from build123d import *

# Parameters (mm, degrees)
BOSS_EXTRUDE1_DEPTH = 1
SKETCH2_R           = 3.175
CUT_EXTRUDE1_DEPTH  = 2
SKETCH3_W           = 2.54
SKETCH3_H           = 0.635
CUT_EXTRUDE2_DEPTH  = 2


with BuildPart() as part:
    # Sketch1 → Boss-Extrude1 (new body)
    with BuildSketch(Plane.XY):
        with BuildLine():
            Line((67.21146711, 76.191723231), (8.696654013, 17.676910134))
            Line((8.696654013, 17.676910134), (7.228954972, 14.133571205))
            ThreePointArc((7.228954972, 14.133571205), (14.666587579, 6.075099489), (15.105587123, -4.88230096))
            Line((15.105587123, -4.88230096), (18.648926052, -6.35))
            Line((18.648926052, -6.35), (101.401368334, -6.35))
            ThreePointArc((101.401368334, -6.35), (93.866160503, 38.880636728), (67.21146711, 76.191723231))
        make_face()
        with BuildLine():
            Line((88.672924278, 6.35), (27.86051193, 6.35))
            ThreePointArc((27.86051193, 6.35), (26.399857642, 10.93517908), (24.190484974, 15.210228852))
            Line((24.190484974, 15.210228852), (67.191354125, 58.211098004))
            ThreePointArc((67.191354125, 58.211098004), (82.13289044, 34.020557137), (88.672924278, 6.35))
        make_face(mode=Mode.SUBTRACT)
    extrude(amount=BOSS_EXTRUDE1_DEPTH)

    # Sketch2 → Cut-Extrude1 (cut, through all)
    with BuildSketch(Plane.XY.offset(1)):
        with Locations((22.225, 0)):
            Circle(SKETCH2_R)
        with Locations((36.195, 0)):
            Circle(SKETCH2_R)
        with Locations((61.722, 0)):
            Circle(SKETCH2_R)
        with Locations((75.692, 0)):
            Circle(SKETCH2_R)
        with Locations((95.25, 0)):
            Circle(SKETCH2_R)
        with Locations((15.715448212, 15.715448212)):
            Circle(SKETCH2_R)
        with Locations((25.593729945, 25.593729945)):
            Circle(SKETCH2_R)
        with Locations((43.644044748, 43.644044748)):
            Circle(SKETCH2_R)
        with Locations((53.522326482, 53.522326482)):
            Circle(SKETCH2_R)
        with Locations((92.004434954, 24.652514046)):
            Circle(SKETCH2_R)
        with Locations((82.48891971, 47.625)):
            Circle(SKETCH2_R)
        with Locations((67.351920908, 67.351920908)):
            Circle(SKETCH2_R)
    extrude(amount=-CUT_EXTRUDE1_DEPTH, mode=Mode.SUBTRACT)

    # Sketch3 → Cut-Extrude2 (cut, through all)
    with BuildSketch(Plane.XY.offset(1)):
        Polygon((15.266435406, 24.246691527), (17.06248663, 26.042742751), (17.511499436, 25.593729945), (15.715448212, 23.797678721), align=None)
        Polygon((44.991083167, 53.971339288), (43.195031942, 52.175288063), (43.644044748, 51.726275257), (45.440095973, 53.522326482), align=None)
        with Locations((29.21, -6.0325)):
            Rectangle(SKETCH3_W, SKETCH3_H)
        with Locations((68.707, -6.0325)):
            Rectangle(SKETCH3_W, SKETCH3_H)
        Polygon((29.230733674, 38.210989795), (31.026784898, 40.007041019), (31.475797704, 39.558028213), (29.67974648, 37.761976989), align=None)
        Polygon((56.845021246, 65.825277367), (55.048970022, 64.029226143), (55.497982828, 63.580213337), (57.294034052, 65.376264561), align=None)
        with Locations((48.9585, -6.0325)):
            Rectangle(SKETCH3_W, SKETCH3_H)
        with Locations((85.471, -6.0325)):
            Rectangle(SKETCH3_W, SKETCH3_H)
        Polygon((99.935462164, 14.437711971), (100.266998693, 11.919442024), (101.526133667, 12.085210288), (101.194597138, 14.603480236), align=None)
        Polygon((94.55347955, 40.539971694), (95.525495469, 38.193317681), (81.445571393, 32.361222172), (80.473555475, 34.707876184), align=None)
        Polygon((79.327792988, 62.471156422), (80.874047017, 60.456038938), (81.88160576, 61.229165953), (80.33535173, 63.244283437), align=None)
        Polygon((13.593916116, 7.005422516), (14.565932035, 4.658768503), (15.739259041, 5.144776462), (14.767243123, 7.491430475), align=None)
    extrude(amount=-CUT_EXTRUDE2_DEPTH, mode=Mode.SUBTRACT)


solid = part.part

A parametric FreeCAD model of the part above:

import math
import FreeCAD as App
import Part
import Sketcher

V = App.Vector
Q = App.Units.Quantity


def add_polygon(sketch, points):
    """Adds a closed chain of lines whose ends are joined by coincident constraints."""
    first, n = sketch.GeometryCount, len(points)
    for a, b in zip(points, points[1:] + points[:1]):
        sketch.addGeometry(Part.LineSegment(App.Vector(*a, 0), App.Vector(*b, 0)), False)
    for i in range(n):
        sketch.addConstraint(Sketcher.Constraint("Coincident", first + i, 2, first + (i + 1) % n, 1))

doc = App.newDocument("Part")
params = doc.addObject("Spreadsheet::Sheet", "Params")
for row, (alias, value) in enumerate([
    ("sketch1_radius", "4 in"),
    ("sketch1_radius2", "3.5 in"),
    ("sketch1_radius3", "0.625 in"),
    ("sketch1_radius4", "1.125 in"),
    ("pad1_length", "1 mm"),
    ("sketch2_diameter", "0.25 in"),
    ("sketch3_width", "0.1 in"),
    ("sketch3_length", "0.1 in"),
    ("sketch3_length2", "0.6 in"),
    ("sketch3_length3", "0.05 in"),
    ("sketch3_height", "0.025 in"),
], start=1):
    params.set(f"A{row}", alias)
    params.set(f"B{row}", "=" + value)
    params.setAlias(f"B{row}", alias)

body = doc.addObject("PartDesign::Body", "Body")

# Sketch on XY plane
sketch1 = doc.addObject("Sketcher::SketchObject", "Sketch")
body.addObject(sketch1)
sketch1.AttachmentSupport = (doc.XY_Plane, [""])
sketch1.MapMode = "FlatFace"
sketch1.addGeometry([
    Part.LineSegment(V(67.2, 76.2, 0), V(8.7, 17.7, 0)),  # 0
    Part.LineSegment(V(8.7, 17.7, 0), V(7.2, 14.1, 0)),  # 1
    Part.ArcOfCircle(Part.Circle(V(0, 0, 0), V(0, 0, 1), 15.9), math.radians(-18), math.radians(63)),  # 2
    Part.LineSegment(V(15.1, -4.9, 0), V(18.6, -6.3, 0)),  # 3
    Part.LineSegment(V(18.6, -6.3, 0), V(101.4, -6.3, 0)),  # 4
    Part.ArcOfCircle(Part.Circle(V(0, 0, 0), V(0, 0, 1), 101.6), math.radians(-4), math.radians(49)),  # 5
    Part.ArcOfCircle(Part.Circle(V(0, 0, 0), V(0, 0, 1), 88.9), math.radians(4), math.radians(41)),  # 6
    Part.LineSegment(V(88.7, 6.3, 0), V(27.9, 6.3, 0)),  # 7
    Part.ArcOfCircle(Part.Circle(V(0, 0, 0), V(0, 0, 1), 28.6), math.radians(12.84), math.radians(32.16)),  # 8
    Part.LineSegment(V(24.2, 15.2, 0), V(67.2, 58.2, 0)),  # 9
], False)
sketch1.addConstraint([
    Sketcher.Constraint("Coincident", 0, 2, 1, 1),
    Sketcher.Constraint("Coincident", 1, 2, 2, 2),
    Sketcher.Constraint("Coincident", 2, 1, 3, 1),
    Sketcher.Constraint("Coincident", 3, 2, 4, 1),
    Sketcher.Constraint("Coincident", 4, 2, 5, 1),
    Sketcher.Constraint("Coincident", 5, 2, 0, 1),
    Sketcher.Constraint("Coincident", 6, 1, 7, 1),
    Sketcher.Constraint("Coincident", 7, 2, 8, 1),
    Sketcher.Constraint("Coincident", 8, 2, 9, 1),
    Sketcher.Constraint("Coincident", 9, 2, 6, 2),
    Sketcher.Constraint("Horizontal", 4),
    Sketcher.Constraint("Horizontal", 7),
    Sketcher.Constraint("Coincident", 2, 3, -1, 1),
    Sketcher.Constraint("Coincident", 5, 3, -1, 1),
    Sketcher.Constraint("Coincident", 6, 3, -1, 1),
    Sketcher.Constraint("Coincident", 8, 3, -1, 1),
    Sketcher.Constraint("Perpendicular", 1, 3),
    Sketcher.Constraint("Parallel", 0, 9),
    Sketcher.Constraint("Equal", 1, 3),
    Sketcher.Constraint("Radius", 5, Q("4 in")),
    Sketcher.Constraint("Radius", 6, Q("3.5 in")),
    Sketcher.Constraint("Angle", 0, Q("-135 deg")),
    Sketcher.Constraint("Radius", 2, Q("0.625 in")),
    Sketcher.Constraint("Radius", 8, Q("1.125 in")),
    Sketcher.Constraint("Angle", 1, Q("-112.5 deg")),
    Sketcher.Constraint("DistanceY", 4, 2, 6, 1, Q("0.5 in")),
    Sketcher.Constraint("DistanceY", 3, 2, -1, 1, Q("0.25 in")),
    Sketcher.Constraint("DistanceY", 2, 1, -1, 1, 4.882301),
    Sketcher.Constraint("DistanceY", -1, 1, 9, 2, 58.211098),
    Sketcher.Constraint("DistanceX", 5, 2, 4, 2, 34.189901),
])
sketch1.setExpression("Constraints[19]", "Params.sketch1_radius")
sketch1.setExpression("Constraints[20]", "Params.sketch1_radius2")
sketch1.setExpression("Constraints[22]", "Params.sketch1_radius3")
sketch1.setExpression("Constraints[23]", "Params.sketch1_radius4")
pad1 = doc.addObject("PartDesign::Pad", "Pad")
body.addObject(pad1)
pad1.Profile = sketch1
pad1.setExpression("Length", "Params.pad1_length")

# Sketch on XY plane
sketch2 = doc.addObject("Sketcher::SketchObject", "Sketch001")
body.addObject(sketch2)
sketch2.AttachmentSupport = (doc.XY_Plane, [""])
sketch2.MapMode = "FlatFace"
sketch2.AttachmentOffset = App.Placement(V(0, 0, 1), App.Rotation())
sketch2.addGeometry([
    Part.Circle(V(22.2, 0, 0), V(0, 0, 1), 3.2),  # 0
    Part.Circle(V(36.2, 0, 0), V(0, 0, 1), 3.2),  # 1
    Part.Circle(V(61.7, 0, 0), V(0, 0, 1), 3.2),  # 2
    Part.Circle(V(75.7, 0, 0), V(0, 0, 1), 3.2),  # 3
    Part.Circle(V(95.2, 0, 0), V(0, 0, 1), 3.2),  # 4
    Part.Circle(V(15.7, 15.7, 0), V(0, 0, 1), 3.2),  # 5
    Part.Circle(V(25.6, 25.6, 0), V(0, 0, 1), 3.2),  # 6
    Part.Circle(V(43.6, 43.6, 0), V(0, 0, 1), 3.2),  # 7
    Part.Circle(V(53.5, 53.5, 0), V(0, 0, 1), 3.2),  # 8
    Part.Circle(V(92, 24.7, 0), V(0, 0, 1), 3.2),  # 9
    Part.Circle(V(82.5, 47.6, 0), V(0, 0, 1), 3.2),  # 10
    Part.Circle(V(67.4, 67.4, 0), V(0, 0, 1), 3.2),  # 11
], False)
sketch2.addConstraint([
    Sketcher.Constraint("Equal", 0, 1),
    Sketcher.Constraint("Equal", 1, 2),
    Sketcher.Constraint("Equal", 2, 3),
    Sketcher.Constraint("Equal", 3, 4),
    Sketcher.Constraint("Equal", 4, 5),
    Sketcher.Constraint("Equal", 5, 6),
    Sketcher.Constraint("Equal", 6, 7),
    Sketcher.Constraint("Equal", 7, 8),
    Sketcher.Constraint("Equal", 8, 9),
    Sketcher.Constraint("Equal", 9, 10),
    Sketcher.Constraint("Equal", 10, 11),
    Sketcher.Constraint("PointOnObject", 0, 3, -1),
    Sketcher.Constraint("PointOnObject", 1, 3, -1),
    Sketcher.Constraint("PointOnObject", 2, 3, -1),
    Sketcher.Constraint("PointOnObject", 3, 3, -1),
    Sketcher.Constraint("PointOnObject", 4, 3, -1),
    Sketcher.Constraint("Diameter", 0, Q("0.25 in")),
    Sketcher.Constraint("DistanceX", -1, 1, 2, 3, Q("2.43 in")),
    Sketcher.Constraint("DistanceX", -1, 1, 3, 3, Q("2.98 in")),
    Sketcher.Constraint("DistanceX", -1, 1, 4, 3, Q("3.75 in")),
    Sketcher.Constraint("DistanceX", 0, 3, 1, 3, Q("0.55 in")),
    Sketcher.Constraint("DistanceX", -1, 1, 0, 3, Q("0.875 in")),
    Sketcher.Constraint("DistanceY", -1, 1, 10, 3, Q("1.875 in")),
    Sketcher.Constraint("DistanceX", 11, 3, 10, 3, 15.136999),
    Sketcher.Constraint("DistanceX", -1, 1, 5, 3, 15.715448),
    Sketcher.Constraint("DistanceY", -1, 1, 5, 3, 15.715448),
    Sketcher.Constraint("DistanceX", -1, 1, 6, 3, 25.59373),
    Sketcher.Constraint("DistanceY", -1, 1, 6, 3, 25.59373),
    Sketcher.Constraint("DistanceX", -1, 1, 10, 3, 82.48892),
    Sketcher.Constraint("DistanceY", -1, 1, 11, 3, 67.351921),
    Sketcher.Constraint("DistanceX", 7, 3, 8, 3, 9.878282),
    Sketcher.Constraint("DistanceY", 7, 3, 8, 3, 9.878282),
    Sketcher.Constraint("DistanceX", 5, 3, 8, 3, 37.806878),
    Sketcher.Constraint("DistanceY", 5, 3, 8, 3, 37.806878),
    Sketcher.Constraint("DistanceX", 8, 3, 9, 3, 38.482108),
    Sketcher.Constraint("DistanceY", 9, 3, 7, 3, 18.991531),
])
sketch2.setExpression("Constraints[16]", "Params.sketch2_diameter")
pocket1 = doc.addObject("PartDesign::Pocket", "Pocket")
body.addObject(pocket1)
pocket1.Profile = sketch2
pocket1.Type = "ThroughAll"

# Sketch on XY plane
sketch3 = doc.addObject("Sketcher::SketchObject", "Sketch002")
body.addObject(sketch3)
sketch3.AttachmentSupport = (doc.XY_Plane, [""])
sketch3.MapMode = "FlatFace"
sketch3.AttachmentOffset = App.Placement(V(0, 0, 1), App.Rotation())
add_polygon(sketch3, [(17.1, 26), (15.3, 24.2), (15.7, 23.8), (17.5, 25.6)])  # lines 0-3
add_polygon(sketch3, [(45, 54), (43.2, 52.2), (43.6, 51.7), (45.4, 53.5)])  # lines 4-7
add_polygon(sketch3, [(27.9, -5.7), (27.9, -6.3), (30.5, -6.3), (30.5, -5.7)])  # lines 8-11
add_polygon(sketch3, [(67.4, -5.7), (67.4, -6.3), (70, -6.3), (70, -5.7)])  # lines 12-15
add_polygon(sketch3, [(31, 40), (29.2, 38.2), (29.7, 37.8), (31.5, 39.6)])  # lines 16-19
add_polygon(sketch3, [(56.8, 65.8), (55, 64), (55.5, 63.6), (57.3, 65.4)])  # lines 20-23
add_polygon(sketch3, [(47.7, -5.7), (47.7, -6.3), (50.2, -6.3), (50.2, -5.7)])  # lines 24-27
add_polygon(sketch3, [(84.2, -5.7), (84.2, -6.3), (86.7, -6.3), (86.7, -5.7)])  # lines 28-31
add_polygon(sketch3, [(99.9, 14.4), (100.3, 11.9), (101.5, 12.1), (101.2, 14.6)])  # lines 32-35
add_polygon(sketch3, [(95.5, 38.2), (94.6, 40.5), (80.5, 34.7), (81.4, 32.4)])  # lines 36-39
add_polygon(sketch3, [(79.3, 62.5), (80.9, 60.5), (81.9, 61.2), (80.3, 63.2)])  # lines 40-43
add_polygon(sketch3, [(13.6, 7), (14.6, 4.7), (15.7, 5.1), (14.8, 7.5)])  # lines 44-47
sketch3.addConstraint([
    Sketcher.Constraint("Vertical", 8),
    Sketcher.Constraint("Horizontal", 9),
    Sketcher.Constraint("Vertical", 10),
    Sketcher.Constraint("Horizontal", 11),
    Sketcher.Constraint("Vertical", 12),
    Sketcher.Constraint("Horizontal", 13),
    Sketcher.Constraint("Vertical", 14),
    Sketcher.Constraint("Horizontal", 15),
    Sketcher.Constraint("Vertical", 24),
    Sketcher.Constraint("Horizontal", 25),
    Sketcher.Constraint("Vertical", 26),
    Sketcher.Constraint("Horizontal", 27),
    Sketcher.Constraint("Vertical", 28),
    Sketcher.Constraint("Horizontal", 29),
    Sketcher.Constraint("Vertical", 30),
    Sketcher.Constraint("Horizontal", 31),
    Sketcher.Constraint("Perpendicular", 0, 1),
    Sketcher.Constraint("Perpendicular", 1, 2),
    Sketcher.Constraint("Perpendicular", 2, 3),
    Sketcher.Constraint("Perpendicular", 3, 4),
    Sketcher.Constraint("Perpendicular", 4, 5),
    Sketcher.Constraint("Perpendicular", 5, 6),
    Sketcher.Constraint("Perpendicular", 6, 7),
    Sketcher.Constraint("Perpendicular", 7, 16),
    Sketcher.Constraint("Perpendicular", 16, 17),
    Sketcher.Constraint("Perpendicular", 17, 18),
    Sketcher.Constraint("Perpendicular", 18, 19),
    Sketcher.Constraint("Perpendicular", 19, 20),
    Sketcher.Constraint("Perpendicular", 20, 21),
    Sketcher.Constraint("Perpendicular", 21, 22),
    Sketcher.Constraint("Perpendicular", 22, 23),
    Sketcher.Constraint("Perpendicular", 32, 33),
    Sketcher.Constraint("Perpendicular", 33, 34),
    Sketcher.Constraint("Perpendicular", 34, 35),
    Sketcher.Constraint("Perpendicular", 36, 37),
    Sketcher.Constraint("Perpendicular", 37, 38),
    Sketcher.Constraint("Perpendicular", 38, 39),
    Sketcher.Constraint("Perpendicular", 40, 41),
    Sketcher.Constraint("Perpendicular", 41, 42),
    Sketcher.Constraint("Perpendicular", 42, 43),
    Sketcher.Constraint("Perpendicular", 39, 44),
    Sketcher.Constraint("Perpendicular", 44, 45),
    Sketcher.Constraint("Perpendicular", 45, 46),
    Sketcher.Constraint("Perpendicular", 46, 47),
    Sketcher.Constraint("Horizontal", 9, 2, 12, 2),
    Sketcher.Constraint("Horizontal", 11, 2, 14, 2),
    Sketcher.Constraint("Horizontal", 13, 2, 24, 2),
    Sketcher.Constraint("Horizontal", 15, 2, 26, 2),
    Sketcher.Constraint("Horizontal", 25, 2, 28, 2),
    Sketcher.Constraint("Horizontal", 27, 2, 30, 2),
    Sketcher.Constraint("Equal", 11, 13),
    Sketcher.Constraint("Equal", 15, 25),
    Sketcher.Constraint("Equal", 27, 29),
    Sketcher.Constraint("Equal", 2, 4),
    Sketcher.Constraint("Equal", 3, 5),
    Sketcher.Constraint("Equal", 6, 16),
    Sketcher.Constraint("Equal", 7, 17),
    Sketcher.Constraint("Equal", 18, 20),
    Sketcher.Constraint("Equal", 19, 21),
    Sketcher.Constraint("Equal", 22, 32),
    Sketcher.Constraint("Equal", 34, 36),
    Sketcher.Constraint("Equal", 38, 40),
    Sketcher.Constraint("Equal", 35, 41),
    Sketcher.Constraint("Equal", 42, 44),
    Sketcher.Constraint("Equal", 43, 45),
    Sketcher.Constraint("DistanceX", 9, 1, 9, 2, Q("0.1 in")),
    Sketcher.Constraint("Angle", 0, Q("-135 deg")),
    Sketcher.Constraint("Distance", 0, Q("0.1 in")),
    Sketcher.Constraint("Distance", 37, Q("0.6 in")),
    Sketcher.Constraint("DistanceX", -1, 1, 8, 2, Q("1.1 in")),
    Sketcher.Constraint("Angle", 32, Q("-82.5 deg")),
    Sketcher.Constraint("Angle", 36, Q("112.5 deg")),
    Sketcher.Constraint("Angle", 40, Q("-52.5 deg")),
    Sketcher.Constraint("Distance", 33, Q("0.05 in")),
    Sketcher.Constraint("DistanceY", 8, 2, 8, 1, Q("0.025 in")),
    Sketcher.Constraint("DistanceY", 8, 2, -1, 1, Q("0.25 in")),
    Sketcher.Constraint("DistanceX", 13, 2, 28, 2, Q("0.56 in")),
    Sketcher.Constraint("Distance", 1, Q("0.025 in")),
    Sketcher.Constraint("DistanceX", -1, 1, 12, 2, Q("2.655 in")),
    Sketcher.Constraint("DistanceX", -1, 1, 24, 2, Q("1.8775 in")),
    Sketcher.Constraint("DistanceX", -1, 1, 2, 2, 17.511499),
    Sketcher.Constraint("DistanceX", -1, 1, 32, 2, 100.266999),
    Sketcher.Constraint("DistanceX", 16, 2, 4, 2, 13.964298),
    Sketcher.Constraint("DistanceY", 16, 2, 4, 2, 13.964298),
    Sketcher.Constraint("DistanceX", 0, 2, 16, 2, 13.964298),
    Sketcher.Constraint("DistanceY", 0, 2, 16, 2, 13.964298),
    Sketcher.Constraint("DistanceY", 6, 2, 20, 2, 10.5069),
    Sketcher.Constraint("DistanceX", 7, 2, 21, 2, 10.5069),
    Sketcher.Constraint("DistanceX", 39, 2, 34, 2, 5.669102),
    Sketcher.Constraint("DistanceY", 41, 2, 22, 2, 4.147099),
    Sketcher.Constraint("DistanceY", 46, 2, 2, 2, 18.102299),
    Sketcher.Constraint("DistanceY", -1, 1, 0, 2, 24.246692),
    Sketcher.Constraint("DistanceY", -1, 1, 33, 2, 12.08521),
    Sketcher.Constraint("DistanceY", -1, 1, 36, 2, 40.539972),
    Sketcher.Constraint("DistanceX", -1, 1, 42, 2, 80.335352),
    Sketcher.Constraint("DistanceX", -1, 1, 45, 2, 15.739259),
])
sketch3.setExpression("Constraints[113]", "Params.sketch3_width")
sketch3.setExpression("Constraints[115]", "Params.sketch3_length")
sketch3.setExpression("Constraints[116]", "Params.sketch3_length2")
sketch3.setExpression("Constraints[121]", "Params.sketch3_length3")
sketch3.setExpression("Constraints[122]", "Params.sketch3_height")
pocket2 = doc.addObject("PartDesign::Pocket", "Pocket001")
body.addObject(pocket2)
pocket2.Profile = sketch3
pocket2.Type = "ThroughAll"

doc.recompute()
